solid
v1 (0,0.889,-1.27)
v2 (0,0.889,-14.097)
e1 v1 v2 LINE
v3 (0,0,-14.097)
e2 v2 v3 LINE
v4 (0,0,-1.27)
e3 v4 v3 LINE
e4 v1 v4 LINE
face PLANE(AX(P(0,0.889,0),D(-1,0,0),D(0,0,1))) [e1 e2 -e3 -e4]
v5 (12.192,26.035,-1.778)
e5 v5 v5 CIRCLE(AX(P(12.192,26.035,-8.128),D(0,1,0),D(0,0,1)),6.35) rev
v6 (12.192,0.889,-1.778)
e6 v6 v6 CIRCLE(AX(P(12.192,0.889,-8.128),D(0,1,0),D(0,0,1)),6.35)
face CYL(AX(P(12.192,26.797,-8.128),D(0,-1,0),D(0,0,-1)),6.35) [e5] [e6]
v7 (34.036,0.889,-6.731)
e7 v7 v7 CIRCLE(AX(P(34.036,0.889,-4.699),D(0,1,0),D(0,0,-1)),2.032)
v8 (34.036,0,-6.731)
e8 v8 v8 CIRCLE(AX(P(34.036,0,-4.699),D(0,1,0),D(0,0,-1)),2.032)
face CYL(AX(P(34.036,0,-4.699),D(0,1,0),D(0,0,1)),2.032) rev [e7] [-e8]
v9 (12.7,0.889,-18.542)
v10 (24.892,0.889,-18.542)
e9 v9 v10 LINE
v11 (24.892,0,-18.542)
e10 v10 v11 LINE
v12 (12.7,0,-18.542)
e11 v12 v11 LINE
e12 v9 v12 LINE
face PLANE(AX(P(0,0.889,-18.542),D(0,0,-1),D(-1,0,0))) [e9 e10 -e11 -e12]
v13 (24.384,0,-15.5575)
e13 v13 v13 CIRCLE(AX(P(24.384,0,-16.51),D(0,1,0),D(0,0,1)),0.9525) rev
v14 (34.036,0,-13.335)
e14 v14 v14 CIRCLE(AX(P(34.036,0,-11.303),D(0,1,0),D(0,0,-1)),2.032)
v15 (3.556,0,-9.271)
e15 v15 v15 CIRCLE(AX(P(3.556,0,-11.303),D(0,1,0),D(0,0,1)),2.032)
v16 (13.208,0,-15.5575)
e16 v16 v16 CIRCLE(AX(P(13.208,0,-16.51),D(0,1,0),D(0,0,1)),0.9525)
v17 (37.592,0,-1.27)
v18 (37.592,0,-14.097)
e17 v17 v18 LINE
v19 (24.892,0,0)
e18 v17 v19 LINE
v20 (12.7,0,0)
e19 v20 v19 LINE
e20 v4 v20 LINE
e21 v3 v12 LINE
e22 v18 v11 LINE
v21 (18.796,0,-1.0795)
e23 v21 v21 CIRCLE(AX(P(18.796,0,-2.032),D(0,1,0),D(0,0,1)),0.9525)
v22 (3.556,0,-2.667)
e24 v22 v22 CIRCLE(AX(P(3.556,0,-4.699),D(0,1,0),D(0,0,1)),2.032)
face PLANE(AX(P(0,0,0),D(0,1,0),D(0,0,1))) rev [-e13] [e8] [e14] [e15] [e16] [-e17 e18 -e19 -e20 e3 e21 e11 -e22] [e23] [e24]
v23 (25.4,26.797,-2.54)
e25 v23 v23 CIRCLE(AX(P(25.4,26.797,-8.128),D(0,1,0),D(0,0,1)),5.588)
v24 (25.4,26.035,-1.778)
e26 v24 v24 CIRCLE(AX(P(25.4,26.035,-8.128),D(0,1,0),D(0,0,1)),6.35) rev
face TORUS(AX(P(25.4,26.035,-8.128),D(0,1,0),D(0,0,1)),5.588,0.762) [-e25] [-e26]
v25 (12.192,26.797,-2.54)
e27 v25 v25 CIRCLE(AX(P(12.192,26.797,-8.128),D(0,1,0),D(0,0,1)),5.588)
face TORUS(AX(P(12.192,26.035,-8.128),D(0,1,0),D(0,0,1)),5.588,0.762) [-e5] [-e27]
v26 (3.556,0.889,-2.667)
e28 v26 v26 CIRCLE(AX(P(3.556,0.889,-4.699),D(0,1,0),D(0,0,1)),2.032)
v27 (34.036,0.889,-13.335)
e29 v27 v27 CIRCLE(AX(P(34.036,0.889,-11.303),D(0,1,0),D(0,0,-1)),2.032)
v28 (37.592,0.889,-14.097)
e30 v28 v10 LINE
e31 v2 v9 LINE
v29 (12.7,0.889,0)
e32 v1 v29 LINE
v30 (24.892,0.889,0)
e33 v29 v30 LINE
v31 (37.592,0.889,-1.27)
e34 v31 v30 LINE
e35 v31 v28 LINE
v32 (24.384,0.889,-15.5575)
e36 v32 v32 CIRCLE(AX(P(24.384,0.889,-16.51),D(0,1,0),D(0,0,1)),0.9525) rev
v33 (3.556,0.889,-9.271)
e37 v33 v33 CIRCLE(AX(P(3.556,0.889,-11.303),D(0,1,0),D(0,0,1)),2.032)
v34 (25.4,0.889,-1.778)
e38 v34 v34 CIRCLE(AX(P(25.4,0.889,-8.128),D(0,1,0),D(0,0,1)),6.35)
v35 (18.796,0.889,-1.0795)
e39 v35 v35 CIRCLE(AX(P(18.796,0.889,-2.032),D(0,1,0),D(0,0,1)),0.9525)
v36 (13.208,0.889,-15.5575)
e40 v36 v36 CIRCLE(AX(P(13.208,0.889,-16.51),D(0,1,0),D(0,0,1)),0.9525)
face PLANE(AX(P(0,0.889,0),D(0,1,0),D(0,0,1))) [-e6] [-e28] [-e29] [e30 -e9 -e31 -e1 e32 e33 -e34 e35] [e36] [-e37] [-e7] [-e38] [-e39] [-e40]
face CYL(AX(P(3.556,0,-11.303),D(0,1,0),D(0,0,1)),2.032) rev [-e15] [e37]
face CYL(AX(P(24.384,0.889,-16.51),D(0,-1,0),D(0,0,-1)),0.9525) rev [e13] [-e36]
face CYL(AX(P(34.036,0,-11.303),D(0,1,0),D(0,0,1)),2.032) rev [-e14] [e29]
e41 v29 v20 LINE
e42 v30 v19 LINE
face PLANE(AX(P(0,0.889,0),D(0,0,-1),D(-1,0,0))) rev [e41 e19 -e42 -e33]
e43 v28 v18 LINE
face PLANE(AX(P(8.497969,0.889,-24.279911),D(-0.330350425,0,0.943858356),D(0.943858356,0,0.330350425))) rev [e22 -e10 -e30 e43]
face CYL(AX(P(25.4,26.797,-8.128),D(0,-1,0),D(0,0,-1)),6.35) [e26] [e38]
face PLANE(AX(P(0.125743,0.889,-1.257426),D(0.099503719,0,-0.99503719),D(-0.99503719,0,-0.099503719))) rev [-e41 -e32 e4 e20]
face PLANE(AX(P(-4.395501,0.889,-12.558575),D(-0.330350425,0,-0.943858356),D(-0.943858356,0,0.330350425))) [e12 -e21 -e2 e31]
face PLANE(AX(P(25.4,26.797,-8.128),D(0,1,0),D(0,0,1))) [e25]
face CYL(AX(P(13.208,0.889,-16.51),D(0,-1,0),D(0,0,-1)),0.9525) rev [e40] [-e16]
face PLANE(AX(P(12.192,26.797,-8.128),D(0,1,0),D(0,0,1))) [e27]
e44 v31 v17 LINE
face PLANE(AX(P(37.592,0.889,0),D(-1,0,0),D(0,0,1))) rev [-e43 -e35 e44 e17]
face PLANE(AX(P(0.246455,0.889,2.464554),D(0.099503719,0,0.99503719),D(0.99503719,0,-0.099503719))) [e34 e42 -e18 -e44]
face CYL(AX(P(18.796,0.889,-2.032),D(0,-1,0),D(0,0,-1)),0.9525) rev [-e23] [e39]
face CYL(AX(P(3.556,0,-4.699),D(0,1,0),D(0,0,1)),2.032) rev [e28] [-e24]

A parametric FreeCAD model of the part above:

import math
import FreeCAD as App
import Part
import Sketcher

V = App.Vector
Q = App.Units.Quantity


def edges_at(feature, points):
    """Names of the edges that pass closest to the given points."""
    edges = feature.Shape.Edges
    near = lambda p: min(range(len(edges)), key=lambda i: edges[i].distToShape(Part.Vertex(*p))[0])
    return sorted({f"Edge{near(p) + 1}" for p in points})


def add_polygon(sketch, points):
    """Adds a closed chain of lines whose ends are joined by coincident constraints."""
    first, n = sketch.GeometryCount, len(points)
    for a, b in zip(points, points[1:] + points[:1]):
        sketch.addGeometry(Part.LineSegment(App.Vector(*a, 0), App.Vector(*b, 0)), False)
    for i in range(n):
        sketch.addConstraint(Sketcher.Constraint("Coincident", first + i, 2, first + (i + 1) % n, 1))

doc = App.newDocument("Part")
body = doc.addObject("PartDesign::Body", "Body")

sketch1 = body.newObject("Sketcher::SketchObject", "Sketch")
sketch1.AttachmentSupport = (doc.getObject("XZ_Plane"), [""])
sketch1.MapMode = "FlatFace"
add_polygon(sketch1, [(12.7, -18.542), (0, -14.097), (0, -1.27), (12.7, 0), (24.892, 0), (37.592, -1.27), (37.592, -14.097), (24.892, -18.542)])
sketch1.addGeometry(Part.ArcOfCircle(Part.Circle(V(18.796, -2.032, 0), V(0, 0, 1), 0.9525), math.radians(90), math.radians(270)), False)
sketch1.addGeometry(Part.ArcOfCircle(Part.Circle(V(18.796, -2.032, 0), V(0, 0, 1), 0.9525), math.radians(-90), math.radians(0)), False)
sketch1.addGeometry(Part.ArcOfCircle(Part.Circle(V(18.796, -2.032, 0), V(0, 0, 1), 0.9525), math.radians(0), math.radians(90)), False)
sketch1.addGeometry(Part.Circle(V(13.208, -16.51, 0), V(0, 0, 1), 0.9525), False)
sketch1.addGeometry(Part.Circle(V(24.384, -16.51, 0), V(0, 0, 1), 0.9525), False)
sketch1.addConstraint(Sketcher.Constraint("Tangent", 8, 2, 9, 1))
sketch1.addConstraint(Sketcher.Constraint("Tangent", 9, 2, 10, 1))
sketch1.addConstraint(Sketcher.Constraint("Tangent", 10, 2, 8, 1))
sketch1.addConstraint(Sketcher.Constraint("Vertical", 1))
sketch1.addConstraint(Sketcher.Constraint("Horizontal", 3))
sketch1.addConstraint(Sketcher.Constraint("Vertical", 5))
sketch1.addConstraint(Sketcher.Constraint("Horizontal", 7))
sketch1.addConstraint(Sketcher.Constraint("Equal", 10, 11))
sketch1.addConstraint(Sketcher.Constraint("Equal", 11, 12))
sketch1.addConstraint(Sketcher.Constraint("PointOnObject", 0, 2, -2))
sketch1.addConstraint(Sketcher.Constraint("PointOnObject", 2, 2, -1))
sketch1.addConstraint(Sketcher.Constraint("Horizontal", 11, 3, 12, 3))
sketch1.addConstraint(Sketcher.Constraint("Horizontal", 1, 2, 4, 2))
sketch1.addConstraint(Sketcher.Constraint("Horizontal", 0, 2, 5, 2))
sketch1.addConstraint(Sketcher.Constraint("Horizontal", 10, 3, 9, 2))
sketch1.addConstraint(Sketcher.Constraint("Vertical", 3, 2, 6, 2))
sketch1.addConstraint(Sketcher.Constraint("Vertical", 2, 2, 7, 2))
sketch1.addConstraint(Sketcher.Constraint("Vertical", 10, 3, 8, 2))
sketch1.addConstraint(Sketcher.Constraint("Vertical", 8, 2, 10, 2))
sketch1.addConstraint(Sketcher.Constraint("Equal", 2, 4))
sketch1.addConstraint(Sketcher.Constraint("Diameter", 11, Q("0.075 in")))
sketch1.addConstraint(Sketcher.Constraint("DistanceX", 3, 1, 3, 2, Q("0.48 in")))
sketch1.addConstraint(Sketcher.Constraint("DistanceX", -1, 1, 2, 2, Q("0.5 in")))
sketch1.addConstraint(Sketcher.Constraint("DistanceY", 11, 3, 1, 2, Q("0.6 in")))
sketch1.addConstraint(Sketcher.Constraint("DistanceY", 1, 1, 1, 2, Q("0.505 in")))
sketch1.addConstraint(Sketcher.Constraint("DistanceX", -1, 1, 8, 3, Q("0.74 in")))
sketch1.addConstraint(Sketcher.Constraint("DistanceY", 8, 3, -1, 1, Q("0.08 in")))
sketch1.addConstraint(Sketcher.Constraint("DistanceX", -1, 1, 11, 3, Q("0.52 in")))
sketch1.addConstraint(Sketcher.Constraint("DistanceY", 11, 3, -1, 1, Q("0.65 in")))
sketch1.addConstraint(Sketcher.Constraint("DistanceX", -1, 1, 12, 3, Q("0.96 in")))
sketch1.addConstraint(Sketcher.Constraint("DistanceY", 6, 2, -1, 1, Q("0.73 in")))
pad1 = body.newObject("PartDesign::Pad", "Pad")
pad1.Profile = sketch1
pad1.Length = Q("0.035 in")
pad1.Reversed = True

sketch2 = body.newObject("Sketcher::SketchObject", "Sketch001")
sketch2.AttachmentSupport = (doc.getObject("XZ_Plane"), [""])
sketch2.MapMode = "FlatFace"
sketch2.AttachmentOffset = App.Placement(V(0, 0, -0.035 * 25.4), App.Rotation())
sketch2.addGeometry(Part.Circle(V(12.192, -8.128, 0), V(0, 0, 1), 6.35), False)
sketch2.addGeometry(Part.Circle(V(25.4, -8.128, 0), V(0, 0, 1), 6.35), False)
sketch2.addConstraint(Sketcher.Constraint("Equal", 0, 1))
sketch2.addConstraint(Sketcher.Constraint("Horizontal", 0, 3, 1, 3))
sketch2.addConstraint(Sketcher.Constraint("Diameter", 0, Q("0.5 in")))
sketch2.addConstraint(Sketcher.Constraint("DistanceX", -1, 1, 1, 3, Q("1 in")))
sketch2.addConstraint(Sketcher.Constraint("DistanceX", -1, 1, 0, 3, Q("0.48 in")))
sketch2.addConstraint(Sketcher.Constraint("DistanceY", 0, 3, -1, 1, Q("0.32 in")))
pad2 = body.newObject("PartDesign::Pad", "Pad001")
pad2.Profile = sketch2
pad2.Length = Q("1.02 in")
pad2.Reversed = True

sketch3 = body.newObject("Sketcher::SketchObject", "Sketch002")
sketch3.AttachmentSupport = (doc.getObject("XZ_Plane"), [""])
sketch3.MapMode = "FlatFace"
sketch3.AttachmentOffset = App.Placement(V(0, 0, -0.035 * 25.4), App.Rotation())
sketch3.addGeometry(Part.Circle(V(3.556, -11.303, 0), V(0, 0, 1), 2.032), False)
sketch3.addGeometry(Part.Circle(V(3.556, -4.699, 0), V(0, 0, 1), 2.032), False)
sketch3.addGeometry(Part.Circle(V(34.036, -4.699, 0), V(0, 0, 1), 2.032), False)
sketch3.addGeometry(Part.Circle(V(34.036, -11.303, 0), V(0, 0, 1), 2.032), False)
sketch3.addConstraint(Sketcher.Constraint("Equal", 0, 1))
sketch3.addConstraint(Sketcher.Constraint("Equal", 1, 2))
sketch3.addConstraint(Sketcher.Constraint("Equal", 2, 3))
sketch3.addConstraint(Sketcher.Constraint("Horizontal", 1, 3, 2, 3))
sketch3.addConstraint(Sketcher.Constraint("Horizontal", 0, 3, 3, 3))
sketch3.addConstraint(Sketcher.Constraint("Vertical", 0, 3, 1, 3))
sketch3.addConstraint(Sketcher.Constraint("Vertical", 2, 3, 3, 3))
sketch3.addConstraint(Sketcher.Constraint("Diameter", 0, Q("0.16 in")))
sketch3.addConstraint(Sketcher.Constraint("DistanceX", 1, 3, 2, 3, Q("1.2 in")))
sketch3.addConstraint(Sketcher.Constraint("DistanceX", -1, 1, 0, 3, Q("0.14 in")))
sketch3.addConstraint(Sketcher.Constraint("DistanceY", 0, 3, 1, 3, Q("0.26 in")))
sketch3.addConstraint(Sketcher.Constraint("DistanceY", 0, 3, -1, 1, Q("0.445 in")))
pocket1 = body.newObject("PartDesign::Pocket", "Pocket")
pocket1.Profile = sketch3
pocket1.Type = "ThroughAll"
pocket1.Reversed = True
doc.recompute()

fillet = body.newObject("PartDesign::Fillet", "Fillet")
fillet.Base = (pocket1, edges_at(pocket1, [(12.192, 26.797, -14.478), (25.4, 26.797, -14.478)]))
fillet.Radius = Q("0.03 in")

doc.recompute()
